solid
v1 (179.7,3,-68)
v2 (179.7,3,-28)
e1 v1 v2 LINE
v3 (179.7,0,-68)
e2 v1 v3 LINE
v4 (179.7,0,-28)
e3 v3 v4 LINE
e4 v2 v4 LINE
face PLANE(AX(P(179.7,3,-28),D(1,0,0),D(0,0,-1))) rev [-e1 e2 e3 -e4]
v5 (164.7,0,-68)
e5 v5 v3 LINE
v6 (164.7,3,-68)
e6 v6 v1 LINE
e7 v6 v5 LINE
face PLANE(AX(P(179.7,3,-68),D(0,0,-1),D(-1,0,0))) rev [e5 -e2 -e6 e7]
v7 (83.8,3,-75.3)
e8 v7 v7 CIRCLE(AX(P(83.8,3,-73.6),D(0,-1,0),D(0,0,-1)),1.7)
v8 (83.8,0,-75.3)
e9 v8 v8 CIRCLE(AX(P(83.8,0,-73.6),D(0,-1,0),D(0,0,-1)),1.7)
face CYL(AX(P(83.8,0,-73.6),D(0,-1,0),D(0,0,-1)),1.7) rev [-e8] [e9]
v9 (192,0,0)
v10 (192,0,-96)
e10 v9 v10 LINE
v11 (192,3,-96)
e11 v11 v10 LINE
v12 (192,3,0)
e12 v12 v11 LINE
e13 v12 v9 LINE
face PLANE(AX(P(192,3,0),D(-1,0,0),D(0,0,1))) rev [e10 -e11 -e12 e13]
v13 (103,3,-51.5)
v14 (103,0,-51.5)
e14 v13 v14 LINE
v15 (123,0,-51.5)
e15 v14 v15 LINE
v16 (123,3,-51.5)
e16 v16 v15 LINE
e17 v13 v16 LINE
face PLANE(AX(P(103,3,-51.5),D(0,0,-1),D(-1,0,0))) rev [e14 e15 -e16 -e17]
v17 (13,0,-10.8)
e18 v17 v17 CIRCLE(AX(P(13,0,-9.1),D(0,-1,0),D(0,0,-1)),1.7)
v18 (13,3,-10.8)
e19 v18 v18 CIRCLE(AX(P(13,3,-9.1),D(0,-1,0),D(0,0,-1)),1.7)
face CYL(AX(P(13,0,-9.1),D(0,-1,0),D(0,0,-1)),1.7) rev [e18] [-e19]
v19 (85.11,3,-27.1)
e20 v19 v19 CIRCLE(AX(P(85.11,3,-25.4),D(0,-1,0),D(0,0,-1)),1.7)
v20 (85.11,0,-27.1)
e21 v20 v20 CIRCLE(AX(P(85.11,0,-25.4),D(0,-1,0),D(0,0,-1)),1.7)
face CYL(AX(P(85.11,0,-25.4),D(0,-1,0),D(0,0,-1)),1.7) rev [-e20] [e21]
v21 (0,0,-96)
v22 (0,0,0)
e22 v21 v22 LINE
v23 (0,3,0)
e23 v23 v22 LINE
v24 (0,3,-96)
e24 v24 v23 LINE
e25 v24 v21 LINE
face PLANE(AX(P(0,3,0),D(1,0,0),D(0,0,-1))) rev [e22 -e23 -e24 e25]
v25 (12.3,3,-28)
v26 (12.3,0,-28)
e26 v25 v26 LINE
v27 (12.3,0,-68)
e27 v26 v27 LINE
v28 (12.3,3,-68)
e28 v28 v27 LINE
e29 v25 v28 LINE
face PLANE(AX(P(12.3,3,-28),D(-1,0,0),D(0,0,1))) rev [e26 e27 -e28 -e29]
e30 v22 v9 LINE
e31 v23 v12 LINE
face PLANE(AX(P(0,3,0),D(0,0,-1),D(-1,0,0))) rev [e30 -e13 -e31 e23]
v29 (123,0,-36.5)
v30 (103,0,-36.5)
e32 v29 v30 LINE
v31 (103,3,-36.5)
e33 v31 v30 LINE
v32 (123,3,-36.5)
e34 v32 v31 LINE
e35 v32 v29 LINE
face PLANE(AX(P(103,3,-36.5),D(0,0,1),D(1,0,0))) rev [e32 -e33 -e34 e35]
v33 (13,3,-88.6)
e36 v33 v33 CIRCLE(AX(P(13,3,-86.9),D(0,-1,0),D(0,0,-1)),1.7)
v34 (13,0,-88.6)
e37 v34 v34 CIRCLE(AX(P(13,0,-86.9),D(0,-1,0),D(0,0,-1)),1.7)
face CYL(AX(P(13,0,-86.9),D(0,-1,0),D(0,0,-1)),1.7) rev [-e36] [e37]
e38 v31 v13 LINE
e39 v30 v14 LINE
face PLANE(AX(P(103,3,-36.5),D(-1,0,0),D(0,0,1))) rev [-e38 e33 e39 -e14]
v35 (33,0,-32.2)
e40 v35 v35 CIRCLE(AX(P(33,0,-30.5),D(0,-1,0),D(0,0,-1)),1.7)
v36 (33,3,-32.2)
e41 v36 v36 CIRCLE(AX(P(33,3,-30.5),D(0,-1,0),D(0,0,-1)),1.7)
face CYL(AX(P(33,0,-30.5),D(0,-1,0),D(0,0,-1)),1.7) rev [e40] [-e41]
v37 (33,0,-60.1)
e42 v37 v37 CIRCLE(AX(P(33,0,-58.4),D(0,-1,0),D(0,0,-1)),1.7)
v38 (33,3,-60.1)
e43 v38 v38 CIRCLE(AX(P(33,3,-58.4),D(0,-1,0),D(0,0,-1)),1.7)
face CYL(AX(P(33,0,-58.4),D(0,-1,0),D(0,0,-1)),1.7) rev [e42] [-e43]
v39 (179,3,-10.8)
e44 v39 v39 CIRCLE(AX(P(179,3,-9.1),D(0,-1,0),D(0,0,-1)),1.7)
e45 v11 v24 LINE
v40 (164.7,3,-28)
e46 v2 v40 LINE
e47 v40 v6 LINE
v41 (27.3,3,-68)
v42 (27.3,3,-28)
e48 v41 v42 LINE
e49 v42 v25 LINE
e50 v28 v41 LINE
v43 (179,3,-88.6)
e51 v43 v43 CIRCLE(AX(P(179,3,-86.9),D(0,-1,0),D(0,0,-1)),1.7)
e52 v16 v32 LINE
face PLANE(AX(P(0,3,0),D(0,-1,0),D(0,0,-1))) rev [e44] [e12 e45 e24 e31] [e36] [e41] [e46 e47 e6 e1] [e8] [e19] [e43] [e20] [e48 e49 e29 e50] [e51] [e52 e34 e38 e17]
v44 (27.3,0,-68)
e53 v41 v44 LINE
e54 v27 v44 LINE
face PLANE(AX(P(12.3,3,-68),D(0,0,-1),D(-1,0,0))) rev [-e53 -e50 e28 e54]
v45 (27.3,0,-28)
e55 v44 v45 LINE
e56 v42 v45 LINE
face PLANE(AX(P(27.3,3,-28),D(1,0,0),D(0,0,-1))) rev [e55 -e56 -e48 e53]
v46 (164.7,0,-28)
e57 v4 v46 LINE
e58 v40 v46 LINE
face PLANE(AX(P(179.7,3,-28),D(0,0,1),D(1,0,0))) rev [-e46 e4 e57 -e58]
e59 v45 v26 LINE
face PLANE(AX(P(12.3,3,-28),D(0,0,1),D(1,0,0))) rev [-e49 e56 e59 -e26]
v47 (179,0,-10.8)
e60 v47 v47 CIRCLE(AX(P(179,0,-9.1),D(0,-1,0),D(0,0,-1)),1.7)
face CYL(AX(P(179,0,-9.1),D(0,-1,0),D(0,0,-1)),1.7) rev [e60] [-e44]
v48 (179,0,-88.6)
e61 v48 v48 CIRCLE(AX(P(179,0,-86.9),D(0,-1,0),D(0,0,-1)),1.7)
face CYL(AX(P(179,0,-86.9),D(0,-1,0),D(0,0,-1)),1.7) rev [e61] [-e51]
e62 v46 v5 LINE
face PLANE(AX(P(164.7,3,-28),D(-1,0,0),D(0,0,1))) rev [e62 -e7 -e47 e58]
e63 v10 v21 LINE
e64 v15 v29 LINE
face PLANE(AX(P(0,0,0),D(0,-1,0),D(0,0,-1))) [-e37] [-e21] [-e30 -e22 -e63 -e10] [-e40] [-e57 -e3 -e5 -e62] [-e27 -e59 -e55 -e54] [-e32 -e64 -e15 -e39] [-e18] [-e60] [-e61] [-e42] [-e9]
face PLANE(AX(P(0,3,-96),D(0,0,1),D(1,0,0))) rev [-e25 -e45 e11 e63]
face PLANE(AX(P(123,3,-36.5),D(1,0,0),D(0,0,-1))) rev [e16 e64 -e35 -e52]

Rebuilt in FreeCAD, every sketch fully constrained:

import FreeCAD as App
import Part
import Sketcher
from FreeCAD import Vector
Q = App.Units.Quantity


def add_polygon(sketch, points):
    """Adds a closed chain of lines whose ends are joined by coincident constraints."""
    first, n = sketch.GeometryCount, len(points)
    for a, b in zip(points, points[1:] + points[:1]):
        sketch.addGeometry(Part.LineSegment(App.Vector(*a, 0), App.Vector(*b, 0)), False)
    for i in range(n):
        sketch.addConstraint(Sketcher.Constraint("Coincident", first + i, 2, first + (i + 1) % n, 1))

doc = App.newDocument("Part")
body = doc.addObject("PartDesign::Body", "Body")

sketch1 = body.newObject("Sketcher::SketchObject", "Sketch")
sketch1.AttachmentSupport = (doc.getObject("XZ_Plane"), [""])
sketch1.MapMode = "FlatFace"
add_polygon(sketch1, [(0, -96), (0, 0), (192, 0), (192, -96)])
sketch1.addConstraint(Sketcher.Constraint("Vertical", 0))
sketch1.addConstraint(Sketcher.Constraint("Horizontal", 1))
sketch1.addConstraint(Sketcher.Constraint("Vertical", 2))
sketch1.addConstraint(Sketcher.Constraint("Horizontal", 3))
sketch1.addConstraint(Sketcher.Constraint("Coincident", 0, 2, -1, 1))
sketch1.addConstraint(Sketcher.Constraint("DistanceX", 1, 1, 1, 2, Q("192 mm")))
sketch1.addConstraint(Sketcher.Constraint("DistanceY", 0, 1, 0, 2, Q("96 mm")))
pad1 = body.newObject("PartDesign::Pad", "Pad")
pad1.Profile = sketch1
pad1.Length = 3
pad1.Reversed = True

sketch2 = body.newObject("Sketcher::SketchObject", "Sketch001")
sketch2.AttachmentSupport = (doc.getObject("XZ_Plane"), [""])
sketch2.MapMode = "FlatFace"
sketch2.addGeometry(Part.Circle(Vector(13, -9.1, 0), Vector(0, 0, 1), 1.7), False)
sketch2.addGeometry(Part.Circle(Vector(179, -9.1, 0), Vector(0, 0, 1), 1.7), False)
sketch2.addGeometry(Part.Circle(Vector(179, -86.9, 0), Vector(0, 0, 1), 1.7), False)
sketch2.addGeometry(Part.Circle(Vector(13, -86.9, 0), Vector(0, 0, 1), 1.7), False)
sketch2.addConstraint(Sketcher.Constraint("Equal", 0, 1))
sketch2.addConstraint(Sketcher.Constraint("Equal", 1, 2))
sketch2.addConstraint(Sketcher.Constraint("Equal", 2, 3))
sketch2.addConstraint(Sketcher.Constraint("Horizontal", 0, 3, 1, 3))
sketch2.addConstraint(Sketcher.Constraint("Horizontal", 2, 3, 3, 3))
sketch2.addConstraint(Sketcher.Constraint("Vertical", 1, 3, 2, 3))
sketch2.addConstraint(Sketcher.Constraint("Vertical", 0, 3, 3, 3))
sketch2.addConstraint(Sketcher.Constraint("Diameter", 0, Q("3.4 mm")))
sketch2.addConstraint(Sketcher.Constraint("DistanceX", -1, 1, 0, 3, Q("13 mm")))
sketch2.addConstraint(Sketcher.Constraint("DistanceX", -1, 1, 1, 3, Q("179 mm")))
sketch2.addConstraint(Sketcher.Constraint("DistanceY", 0, 3, -1, 1, Q("9.1 mm")))
sketch2.addConstraint(Sketcher.Constraint("DistanceY", 2, 3, -1, 1, Q("86.9 mm")))
doc.recompute()
hole = body.newObject("PartDesign::Hole", "Hole")
hole.Profile = sketch2
hole.ThreadType = "None"
hole.Diameter = 3.4
hole.DepthType = "ThroughAll"

sketch3 = body.newObject("Sketcher::SketchObject", "Sketch002")
sketch3.AttachmentSupport = (doc.getObject("XZ_Plane"), [""])
sketch3.MapMode = "FlatFace"
add_polygon(sketch3, [(12, -28), (12, -68), (27, -68), (27, -28)])
add_polygon(sketch3, [(165, -28), (165, -68), (180, -68), (180, -28)])
add_polygon(sketch3, [(103, -36), (103, -52), (123, -52), (123, -36)])
sketch3.addConstraint(Sketcher.Constraint("Vertical", 0))
sketch3.addConstraint(Sketcher.Constraint("Horizontal", 1))
sketch3.addConstraint(Sketcher.Constraint("Vertical", 2))
sketch3.addConstraint(Sketcher.Constraint("Horizontal", 3))
sketch3.addConstraint(Sketcher.Constraint("Vertical", 4))
sketch3.addConstraint(Sketcher.Constraint("Horizontal", 5))
sketch3.addConstraint(Sketcher.Constraint("Vertical", 6))
sketch3.addConstraint(Sketcher.Constraint("Horizontal", 7))
sketch3.addConstraint(Sketcher.Constraint("Vertical", 8))
sketch3.addConstraint(Sketcher.Constraint("Horizontal", 9))
sketch3.addConstraint(Sketcher.Constraint("Vertical", 10))
sketch3.addConstraint(Sketcher.Constraint("Horizontal", 11))
sketch3.addConstraint(Sketcher.Constraint("Horizontal", 1, 2, 4, 2))
sketch3.addConstraint(Sketcher.Constraint("Horizontal", 3, 2, 6, 2))
sketch3.addConstraint(Sketcher.Constraint("Equal", 3, 5))
sketch3.addConstraint(Sketcher.Constraint("Equal", 7, 8))
sketch3.addConstraint(Sketcher.Constraint("DistanceX", 1, 1, 1, 2, Q("15 mm")))
sketch3.addConstraint(Sketcher.Constraint("DistanceX", 9, 1, 9, 2, Q("20 mm")))
sketch3.addConstraint(Sketcher.Constraint("DistanceY", 0, 2, 0, 1, Q("40 mm")))
sketch3.addConstraint(Sketcher.Constraint("DistanceY", 0, 2, -1, 1, Q("68 mm")))
sketch3.addConstraint(Sketcher.Constraint("DistanceX", -1, 1, 8, 2, Q("103 mm")))
sketch3.addConstraint(Sketcher.Constraint("DistanceX", -1, 1, 0, 2, Q("12.3 mm")))
sketch3.addConstraint(Sketcher.Constraint("DistanceX", -1, 1, 4, 2, Q("164.7 mm")))
sketch3.addConstraint(Sketcher.Constraint("DistanceY", 8, 2, -1, 1, Q("51.5 mm")))
pocket1 = body.newObject("PartDesign::Pocket", "Pocket")
pocket1.Profile = sketch3
pocket1.Type = "ThroughAll"

sketch4 = body.newObject("Sketcher::SketchObject", "Sketch003")
sketch4.AttachmentSupport = (doc.getObject("XZ_Plane"), [""])
sketch4.MapMode = "FlatFace"
sketch4.addGeometry(Part.Circle(Vector(33, -58.4, 0), Vector(0, 0, 1), 1.7), False)
sketch4.addGeometry(Part.Circle(Vector(33, -30.5, 0), Vector(0, 0, 1), 1.7), False)
sketch4.addGeometry(Part.Circle(Vector(85.1, -25.4, 0), Vector(0, 0, 1), 1.7), False)
sketch4.addGeometry(Part.Circle(Vector(83.8, -73.6, 0), Vector(0, 0, 1), 1.7), False)
sketch4.addConstraint(Sketcher.Constraint("Equal", 0, 1))
sketch4.addConstraint(Sketcher.Constraint("Equal", 1, 2))
sketch4.addConstraint(Sketcher.Constraint("Equal", 2, 3))
sketch4.addConstraint(Sketcher.Constraint("Vertical", 0, 3, 1, 3))
sketch4.addConstraint(Sketcher.Constraint("Diameter", 0, Q("3.4 mm")))
sketch4.addConstraint(Sketcher.Constraint("DistanceX", -1, 1, 0, 3, Q("33 mm")))
sketch4.addConstraint(Sketcher.Constraint("DistanceY", 0, 3, 2, 3, Q("33 mm")))
sketch4.addConstraint(Sketcher.Constraint("DistanceY", 0, 3, -1, 1, Q("58.4 mm")))
sketch4.addConstraint(Sketcher.Constraint("DistanceY", 1, 3, -1, 1, Q("30.5 mm")))
sketch4.addConstraint(Sketcher.Constraint("DistanceX", -1, 1, 3, 3, Q("83.8 mm")))
sketch4.addConstraint(Sketcher.Constraint("DistanceY", 3, 3, -1, 1, Q("73.6 mm")))
sketch4.addConstraint(Sketcher.Constraint("DistanceX", -1, 1, 2, 3, Q("85.11 mm")))
doc.recompute()
hole2 = body.newObject("PartDesign::Hole", "Hole001")
hole2.Profile = sketch4
hole2.ThreadType = "None"
hole2.Diameter = 3.4
hole2.DepthType = "ThroughAll"

doc.recompute()
